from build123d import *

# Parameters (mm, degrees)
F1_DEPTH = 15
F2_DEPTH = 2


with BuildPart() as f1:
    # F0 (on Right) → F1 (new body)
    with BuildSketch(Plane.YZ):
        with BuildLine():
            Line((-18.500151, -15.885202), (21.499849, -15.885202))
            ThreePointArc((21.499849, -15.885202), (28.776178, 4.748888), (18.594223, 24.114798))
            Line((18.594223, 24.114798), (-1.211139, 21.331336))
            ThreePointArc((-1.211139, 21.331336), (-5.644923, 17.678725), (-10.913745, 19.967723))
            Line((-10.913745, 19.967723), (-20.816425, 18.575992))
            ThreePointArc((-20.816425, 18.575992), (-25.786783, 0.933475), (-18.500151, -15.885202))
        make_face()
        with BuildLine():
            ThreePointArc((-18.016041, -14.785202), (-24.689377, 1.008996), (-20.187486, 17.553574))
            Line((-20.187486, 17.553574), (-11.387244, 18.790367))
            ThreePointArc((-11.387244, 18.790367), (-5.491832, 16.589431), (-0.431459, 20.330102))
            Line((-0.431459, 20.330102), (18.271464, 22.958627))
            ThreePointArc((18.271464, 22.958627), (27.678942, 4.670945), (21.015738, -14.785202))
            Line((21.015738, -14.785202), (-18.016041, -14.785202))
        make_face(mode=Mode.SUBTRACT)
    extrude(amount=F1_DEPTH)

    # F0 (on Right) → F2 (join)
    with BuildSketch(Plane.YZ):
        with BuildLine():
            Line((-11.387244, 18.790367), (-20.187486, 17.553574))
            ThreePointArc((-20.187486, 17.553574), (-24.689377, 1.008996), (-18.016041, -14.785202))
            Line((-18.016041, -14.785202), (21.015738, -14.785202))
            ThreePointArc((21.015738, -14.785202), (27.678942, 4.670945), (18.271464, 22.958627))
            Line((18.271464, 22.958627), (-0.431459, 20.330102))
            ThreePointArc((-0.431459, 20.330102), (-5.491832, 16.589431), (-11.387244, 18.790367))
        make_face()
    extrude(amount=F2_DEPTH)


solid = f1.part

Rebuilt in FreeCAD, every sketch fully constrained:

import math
import FreeCAD as App
import Part
import Sketcher
from FreeCAD import Vector
Q = App.Units.Quantity

doc = App.newDocument("Part")
params = doc.addObject("Spreadsheet::Sheet", "Params")
for row, (alias, value) in enumerate([
    ("sketch1_radius", "5.5 mm"),
    ("sketch1_radius2", "6.600001 mm"),
    ("sketch1_width", "40 mm"),
    ("sketch1_length", "20.000001 mm"),
    ("sketch1_length2", "9.999999 mm"),
    ("pad1_length", "15 mm"),
    ("sketch2_radius", "6.600001 mm"),
    ("pad2_length", "2 mm"),
], start=1):
    params.set(f"A{row}", alias)
    params.set(f"B{row}", "=" + value)
    params.setAlias(f"B{row}", alias)

body = doc.addObject("PartDesign::Body", "Body")

# Sketch on YZ plane
sketch1 = body.newObject("Sketcher::SketchObject", "Sketch")
sketch1.AttachmentSupport = (doc.getObject("YZ_Plane"), [""])
sketch1.MapMode = "FlatFace"
sketch1.addGeometry(Part.LineSegment(Vector(-19, -16, 0), Vector(21, -16, 0)), False)
sketch1.addGeometry(Part.ArcOfCircle(Part.Circle(Vector(1, 3, 0), Vector(0, 0, 1), 27), math.radians(-43), math.radians(51)), False)
sketch1.addGeometry(Part.LineSegment(Vector(19, 24, 0), Vector(-1, 21, 0)), False)
sketch1.addGeometry(Part.ArcOfCircle(Part.Circle(Vector(-6, 23, 0), Vector(0, 0, 1), 5), math.radians(-145), math.radians(-19)), False)
sketch1.addGeometry(Part.LineSegment(Vector(-11, 20, 0), Vector(-21, 19, 0)), False)
sketch1.addGeometry(Part.ArcOfCircle(Part.Circle(Vector(1, 3, 0), Vector(0, 0, 1), 27), math.radians(145), math.radians(223)), False)
sketch1.addGeometry(Part.LineSegment(Vector(21, -15, 0), Vector(-18, -15, 0)), False)
sketch1.addGeometry(Part.ArcOfCircle(Part.Circle(Vector(1, 3, 0), Vector(0, 0, 1), 26), math.radians(146), math.radians(222)), False)
sketch1.addGeometry(Part.LineSegment(Vector(-20, 18, 0), Vector(-11, 19, 0)), False)
sketch1.addGeometry(Part.ArcOfCircle(Part.Circle(Vector(-6, 23, 0), Vector(0, 0, 1), 7), math.radians(-139), math.radians(-25)), False)
sketch1.addGeometry(Part.LineSegment(Vector(0, 20, 0), Vector(18, 23, 0)), False)
sketch1.addGeometry(Part.ArcOfCircle(Part.Circle(Vector(1, 3, 0), Vector(0, 0, 1), 26), math.radians(-42), math.radians(50)), False)
sketch1.addConstraint(Sketcher.Constraint("Coincident", 0, 2, 1, 1))
sketch1.addConstraint(Sketcher.Constraint("Coincident", 1, 2, 2, 1))
sketch1.addConstraint(Sketcher.Constraint("Coincident", 2, 2, 3, 2))
sketch1.addConstraint(Sketcher.Constraint("Coincident", 3, 1, 4, 1))
sketch1.addConstraint(Sketcher.Constraint("Coincident", 4, 2, 5, 1))
sketch1.addConstraint(Sketcher.Constraint("Coincident", 5, 2, 0, 1))
sketch1.addConstraint(Sketcher.Constraint("Coincident", 6, 2, 7, 2))
sketch1.addConstraint(Sketcher.Constraint("Coincident", 7, 1, 8, 1))
sketch1.addConstraint(Sketcher.Constraint("Coincident", 8, 2, 9, 1))
sketch1.addConstraint(Sketcher.Constraint("Coincident", 9, 2, 10, 1))
sketch1.addConstraint(Sketcher.Constraint("Coincident", 10, 2, 11, 2))
sketch1.addConstraint(Sketcher.Constraint("Coincident", 11, 1, 6, 1))
sketch1.addConstraint(Sketcher.Constraint("Horizontal", 0))
sketch1.addConstraint(Sketcher.Constraint("Horizontal", 6))
sketch1.addConstraint(Sketcher.Constraint("Coincident", 5, 3, 1, 3))
sketch1.addConstraint(Sketcher.Constraint("Coincident", 7, 3, 1, 3))
sketch1.addConstraint(Sketcher.Constraint("Coincident", 9, 3, 3, 3))
sketch1.addConstraint(Sketcher.Constraint("Coincident", 11, 3, 1, 3))
sketch1.addConstraint(Sketcher.Constraint("Equal", 7, 11))
sketch1.addConstraint(Sketcher.Constraint("Parallel", 2, 4))
sketch1.addConstraint(Sketcher.Constraint("Parallel", 4, 8))
sketch1.addConstraint(Sketcher.Constraint("Parallel", 8, 10))
sketch1.addConstraint(Sketcher.Constraint("Radius", 3, 5.5))
sketch1.addConstraint(Sketcher.Constraint("Radius", 9, 6.600001))
sketch1.addConstraint(Sketcher.Constraint("DistanceX", 0, 1, 0, 2, 40.0))
sketch1.addConstraint(Sketcher.Constraint("Angle", 2, Q("-172 deg")))
sketch1.addConstraint(Sketcher.Constraint("Distance", 2, 20.000001))
sketch1.addConstraint(Sketcher.Constraint("Distance", 4, 9.999999))
sketch1.addConstraint(Sketcher.Constraint("DistanceX", 11, 3, 0, 2, 19.999999))
sketch1.addConstraint(Sketcher.Constraint("Radius", 1, 27.3482))
sketch1.addConstraint(Sketcher.Constraint("Radius", 7, 26.248198))
sketch1.addConstraint(Sketcher.Constraint("DistanceY", 5, 2, 6, 2, 1.1))
sketch1.addConstraint(Sketcher.Constraint("DistanceY", -1, 1, 3, 3, 23.125199))
sketch1.addConstraint(Sketcher.Constraint("DistanceY", -1, 1, 1, 2, 24.114798))
sketch1.addConstraint(Sketcher.Constraint("DistanceY", 5, 2, -1, 1, 15.885202))
sketch1.addConstraint(Sketcher.Constraint("DistanceX", 8, 2, 3, 1, 0.473499))
sketch1.addConstraint(Sketcher.Constraint("DistanceY", 9, 2, 9, 3, 2.795099))
sketch1.addConstraint(Sketcher.Constraint("DistanceX", -1, 1, 11, 3, 1.49985))
sketch1.setExpression("Constraints[22]", "Params.sketch1_radius")
sketch1.setExpression("Constraints[23]", "Params.sketch1_radius2")
sketch1.setExpression("Constraints[24]", "Params.sketch1_width")
sketch1.setExpression("Constraints[26]", "Params.sketch1_length")
sketch1.setExpression("Constraints[27]", "Params.sketch1_length2")
pad1 = body.newObject("PartDesign::Pad", "Pad")
pad1.Profile = sketch1
pad1.setExpression("Length", "Params.pad1_length")

# Sketch on YZ plane
sketch2 = body.newObject("Sketcher::SketchObject", "Sketch001")
sketch2.AttachmentSupport = (doc.getObject("YZ_Plane"), [""])
sketch2.MapMode = "FlatFace"
sketch2.addGeometry(Part.LineSegment(Vector(-11, 19, 0), Vector(-20, 18, 0)), False)
sketch2.addGeometry(Part.ArcOfCircle(Part.Circle(Vector(1, 3, 0), Vector(0, 0, 1), 26), math.radians(146), math.radians(222)), False)
sketch2.addGeometry(Part.LineSegment(Vector(-18, -15, 0), Vector(21, -15, 0)), False)
sketch2.addGeometry(Part.ArcOfCircle(Part.Circle(Vector(1, 3, 0), Vector(0, 0, 1), 26), math.radians(-42), math.radians(50)), False)
sketch2.addGeometry(Part.LineSegment(Vector(18, 23, 0), Vector(0, 20, 0)), False)
sketch2.addGeometry(Part.ArcOfCircle(Part.Circle(Vector(-6, 23, 0), Vector(0, 0, 1), 7), math.radians(-139), math.radians(-25)), False)
sketch2.addConstraint(Sketcher.Constraint("Coincident", 0, 2, 1, 1))
sketch2.addConstraint(Sketcher.Constraint("Coincident", 1, 2, 2, 1))
sketch2.addConstraint(Sketcher.Constraint("Coincident", 2, 2, 3, 1))
sketch2.addConstraint(Sketcher.Constraint("Coincident", 3, 2, 4, 1))
sketch2.addConstraint(Sketcher.Constraint("Coincident", 4, 2, 5, 2))
sketch2.addConstraint(Sketcher.Constraint("Coincident", 5, 1, 0, 1))
sketch2.addConstraint(Sketcher.Constraint("Horizontal", 2))
sketch2.addConstraint(Sketcher.Constraint("Coincident", 3, 3, 1, 3))
sketch2.addConstraint(Sketcher.Constraint("Equal", 1, 3))
sketch2.addConstraint(Sketcher.Constraint("Parallel", 0, 4))
sketch2.addConstraint(Sketcher.Constraint("Radius", 5, 6.600001))
sketch2.addConstraint(Sketcher.Constraint("Angle", 0, Q("-172.000002 deg")))
sketch2.addConstraint(Sketcher.Constraint("Radius", 1, 26.248198))
sketch2.addConstraint(Sketcher.Constraint("DistanceX", 2, 1, 2, 2, 39.031779))
sketch2.addConstraint(Sketcher.Constraint("DistanceY", -1, 1, 5, 3, 23.125201))
sketch2.addConstraint(Sketcher.Constraint("DistanceY", 1, 2, -1, 1, 14.785202))
sketch2.addConstraint(Sketcher.Constraint("DistanceY", -1, 1, 4, 2, 20.330102))
sketch2.addConstraint(Sketcher.Constraint("DistanceX", -1, 1, 3, 3, 1.49985))
sketch2.addConstraint(Sketcher.Constraint("DistanceX", 4, 2, -1, 1, 0.431459))
sketch2.addConstraint(Sketcher.Constraint("DistanceX", 0, 2, 5, 3, 13.777111))
sketch2.setExpression("Constraints[10]", "Params.sketch2_radius")
pad2 = body.newObject("PartDesign::Pad", "Pad001")
pad2.Profile = sketch2
pad2.setExpression("Length", "Params.pad2_length")

doc.recompute()
